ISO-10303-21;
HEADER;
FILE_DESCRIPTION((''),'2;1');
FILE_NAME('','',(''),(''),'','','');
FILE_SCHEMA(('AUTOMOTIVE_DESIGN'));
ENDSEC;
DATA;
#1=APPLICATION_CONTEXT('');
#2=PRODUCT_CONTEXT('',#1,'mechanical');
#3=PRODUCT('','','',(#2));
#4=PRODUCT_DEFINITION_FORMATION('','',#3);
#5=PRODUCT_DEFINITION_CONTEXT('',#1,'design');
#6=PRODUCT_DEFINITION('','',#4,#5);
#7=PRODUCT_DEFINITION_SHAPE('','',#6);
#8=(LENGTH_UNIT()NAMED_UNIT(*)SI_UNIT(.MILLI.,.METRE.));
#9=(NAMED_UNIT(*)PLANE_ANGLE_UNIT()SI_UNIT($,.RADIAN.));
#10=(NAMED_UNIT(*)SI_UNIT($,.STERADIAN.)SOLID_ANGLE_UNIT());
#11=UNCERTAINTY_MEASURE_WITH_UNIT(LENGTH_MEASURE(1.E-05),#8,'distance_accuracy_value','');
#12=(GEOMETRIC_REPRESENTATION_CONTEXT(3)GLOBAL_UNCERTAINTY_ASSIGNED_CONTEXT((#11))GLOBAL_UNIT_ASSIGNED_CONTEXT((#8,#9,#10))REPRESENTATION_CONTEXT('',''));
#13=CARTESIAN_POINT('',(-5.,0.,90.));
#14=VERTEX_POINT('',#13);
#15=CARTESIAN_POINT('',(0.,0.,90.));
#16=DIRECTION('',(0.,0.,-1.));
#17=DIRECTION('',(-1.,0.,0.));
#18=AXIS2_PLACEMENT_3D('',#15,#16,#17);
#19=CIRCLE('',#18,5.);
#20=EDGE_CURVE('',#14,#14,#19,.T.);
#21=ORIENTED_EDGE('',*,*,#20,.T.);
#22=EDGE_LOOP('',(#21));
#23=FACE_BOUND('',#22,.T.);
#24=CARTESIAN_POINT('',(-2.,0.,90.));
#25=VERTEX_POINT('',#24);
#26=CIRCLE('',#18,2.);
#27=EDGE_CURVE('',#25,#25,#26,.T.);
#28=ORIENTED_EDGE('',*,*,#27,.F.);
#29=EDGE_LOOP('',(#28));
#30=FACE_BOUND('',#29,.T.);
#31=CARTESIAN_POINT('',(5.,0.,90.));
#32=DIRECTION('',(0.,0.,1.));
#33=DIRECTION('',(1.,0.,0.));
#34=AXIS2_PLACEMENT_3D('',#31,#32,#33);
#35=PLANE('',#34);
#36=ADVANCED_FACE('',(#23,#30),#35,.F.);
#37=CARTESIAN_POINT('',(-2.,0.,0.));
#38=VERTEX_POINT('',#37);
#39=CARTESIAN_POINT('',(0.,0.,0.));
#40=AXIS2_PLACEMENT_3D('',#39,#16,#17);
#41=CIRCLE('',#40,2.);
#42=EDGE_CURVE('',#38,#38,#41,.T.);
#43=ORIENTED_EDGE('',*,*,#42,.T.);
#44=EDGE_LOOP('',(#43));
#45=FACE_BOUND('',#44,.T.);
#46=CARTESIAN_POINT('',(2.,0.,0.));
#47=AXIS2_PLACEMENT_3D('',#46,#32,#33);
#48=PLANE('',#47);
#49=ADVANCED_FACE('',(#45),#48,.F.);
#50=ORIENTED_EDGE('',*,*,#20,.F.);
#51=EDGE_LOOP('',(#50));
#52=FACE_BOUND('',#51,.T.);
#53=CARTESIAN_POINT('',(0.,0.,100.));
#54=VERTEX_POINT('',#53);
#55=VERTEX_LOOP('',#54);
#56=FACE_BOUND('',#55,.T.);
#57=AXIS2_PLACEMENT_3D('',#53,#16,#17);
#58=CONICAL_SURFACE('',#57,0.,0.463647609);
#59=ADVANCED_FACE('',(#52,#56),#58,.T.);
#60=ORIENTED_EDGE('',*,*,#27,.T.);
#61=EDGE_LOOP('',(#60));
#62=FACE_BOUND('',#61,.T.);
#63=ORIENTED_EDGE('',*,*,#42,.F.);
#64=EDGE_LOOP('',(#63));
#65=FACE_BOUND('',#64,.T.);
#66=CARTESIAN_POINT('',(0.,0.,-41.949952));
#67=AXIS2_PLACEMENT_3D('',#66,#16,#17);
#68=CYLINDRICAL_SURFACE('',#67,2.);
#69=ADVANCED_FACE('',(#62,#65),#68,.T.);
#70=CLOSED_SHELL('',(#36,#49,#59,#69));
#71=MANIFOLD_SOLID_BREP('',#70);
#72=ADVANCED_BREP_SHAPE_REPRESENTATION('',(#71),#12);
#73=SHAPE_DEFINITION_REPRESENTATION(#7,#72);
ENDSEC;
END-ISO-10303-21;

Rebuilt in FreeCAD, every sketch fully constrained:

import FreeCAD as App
import Part
import Sketcher
from FreeCAD import Vector

doc = App.newDocument("Part")
body = doc.addObject("PartDesign::Body", "Body")

# Sketch on XZ plane
sketch1 = body.newObject("Sketcher::SketchObject", "Sketch")
sketch1.AttachmentSupport = (doc.getObject("XZ_Plane"), [""])
sketch1.MapMode = "FlatFace"
sketch1.addGeometry([
    Part.LineSegment(Vector(0, 100, 0), Vector(5, 90, 0)),  # 0
    Part.LineSegment(Vector(5, 90, 0), Vector(2, 90, 0)),  # 1
    Part.LineSegment(Vector(2, 90, 0), Vector(2, 0, 0)),  # 2
    Part.LineSegment(Vector(2, 0, 0), Vector(0, 0, 0)),  # 3
    Part.LineSegment(Vector(0, 0, 0), Vector(0, 100, 0)),  # 4
], False)
sketch1.addConstraint([
    Sketcher.Constraint("Coincident", 0, 2, 1, 1),
    Sketcher.Constraint("Coincident", 1, 2, 2, 1),
    Sketcher.Constraint("Coincident", 2, 2, 3, 1),
    Sketcher.Constraint("Coincident", 3, 2, 4, 1),
    Sketcher.Constraint("Coincident", 4, 2, 0, 1),
    Sketcher.Constraint("Horizontal", 1),
    Sketcher.Constraint("Vertical", 2),
    Sketcher.Constraint("Horizontal", 3),
    Sketcher.Constraint("Vertical", 4),
    Sketcher.Constraint("Coincident", 3, 2, -1, 1),
    Sketcher.Constraint("DistanceX", 1, 2, 1, 1, 3.0),
    Sketcher.Constraint("DistanceX", 3, 2, 3, 1, 2.0),
    Sketcher.Constraint("DistanceY", 2, 2, 2, 1, 90.0),
    Sketcher.Constraint("DistanceY", 4, 1, 4, 2, 100.0),
])
revolution = body.newObject("PartDesign::Revolution", "Revolution")
revolution.Profile = sketch1
revolution.ReferenceAxis = (sketch1, ["V_Axis"])
revolution.Angle = 360

doc.recompute()
